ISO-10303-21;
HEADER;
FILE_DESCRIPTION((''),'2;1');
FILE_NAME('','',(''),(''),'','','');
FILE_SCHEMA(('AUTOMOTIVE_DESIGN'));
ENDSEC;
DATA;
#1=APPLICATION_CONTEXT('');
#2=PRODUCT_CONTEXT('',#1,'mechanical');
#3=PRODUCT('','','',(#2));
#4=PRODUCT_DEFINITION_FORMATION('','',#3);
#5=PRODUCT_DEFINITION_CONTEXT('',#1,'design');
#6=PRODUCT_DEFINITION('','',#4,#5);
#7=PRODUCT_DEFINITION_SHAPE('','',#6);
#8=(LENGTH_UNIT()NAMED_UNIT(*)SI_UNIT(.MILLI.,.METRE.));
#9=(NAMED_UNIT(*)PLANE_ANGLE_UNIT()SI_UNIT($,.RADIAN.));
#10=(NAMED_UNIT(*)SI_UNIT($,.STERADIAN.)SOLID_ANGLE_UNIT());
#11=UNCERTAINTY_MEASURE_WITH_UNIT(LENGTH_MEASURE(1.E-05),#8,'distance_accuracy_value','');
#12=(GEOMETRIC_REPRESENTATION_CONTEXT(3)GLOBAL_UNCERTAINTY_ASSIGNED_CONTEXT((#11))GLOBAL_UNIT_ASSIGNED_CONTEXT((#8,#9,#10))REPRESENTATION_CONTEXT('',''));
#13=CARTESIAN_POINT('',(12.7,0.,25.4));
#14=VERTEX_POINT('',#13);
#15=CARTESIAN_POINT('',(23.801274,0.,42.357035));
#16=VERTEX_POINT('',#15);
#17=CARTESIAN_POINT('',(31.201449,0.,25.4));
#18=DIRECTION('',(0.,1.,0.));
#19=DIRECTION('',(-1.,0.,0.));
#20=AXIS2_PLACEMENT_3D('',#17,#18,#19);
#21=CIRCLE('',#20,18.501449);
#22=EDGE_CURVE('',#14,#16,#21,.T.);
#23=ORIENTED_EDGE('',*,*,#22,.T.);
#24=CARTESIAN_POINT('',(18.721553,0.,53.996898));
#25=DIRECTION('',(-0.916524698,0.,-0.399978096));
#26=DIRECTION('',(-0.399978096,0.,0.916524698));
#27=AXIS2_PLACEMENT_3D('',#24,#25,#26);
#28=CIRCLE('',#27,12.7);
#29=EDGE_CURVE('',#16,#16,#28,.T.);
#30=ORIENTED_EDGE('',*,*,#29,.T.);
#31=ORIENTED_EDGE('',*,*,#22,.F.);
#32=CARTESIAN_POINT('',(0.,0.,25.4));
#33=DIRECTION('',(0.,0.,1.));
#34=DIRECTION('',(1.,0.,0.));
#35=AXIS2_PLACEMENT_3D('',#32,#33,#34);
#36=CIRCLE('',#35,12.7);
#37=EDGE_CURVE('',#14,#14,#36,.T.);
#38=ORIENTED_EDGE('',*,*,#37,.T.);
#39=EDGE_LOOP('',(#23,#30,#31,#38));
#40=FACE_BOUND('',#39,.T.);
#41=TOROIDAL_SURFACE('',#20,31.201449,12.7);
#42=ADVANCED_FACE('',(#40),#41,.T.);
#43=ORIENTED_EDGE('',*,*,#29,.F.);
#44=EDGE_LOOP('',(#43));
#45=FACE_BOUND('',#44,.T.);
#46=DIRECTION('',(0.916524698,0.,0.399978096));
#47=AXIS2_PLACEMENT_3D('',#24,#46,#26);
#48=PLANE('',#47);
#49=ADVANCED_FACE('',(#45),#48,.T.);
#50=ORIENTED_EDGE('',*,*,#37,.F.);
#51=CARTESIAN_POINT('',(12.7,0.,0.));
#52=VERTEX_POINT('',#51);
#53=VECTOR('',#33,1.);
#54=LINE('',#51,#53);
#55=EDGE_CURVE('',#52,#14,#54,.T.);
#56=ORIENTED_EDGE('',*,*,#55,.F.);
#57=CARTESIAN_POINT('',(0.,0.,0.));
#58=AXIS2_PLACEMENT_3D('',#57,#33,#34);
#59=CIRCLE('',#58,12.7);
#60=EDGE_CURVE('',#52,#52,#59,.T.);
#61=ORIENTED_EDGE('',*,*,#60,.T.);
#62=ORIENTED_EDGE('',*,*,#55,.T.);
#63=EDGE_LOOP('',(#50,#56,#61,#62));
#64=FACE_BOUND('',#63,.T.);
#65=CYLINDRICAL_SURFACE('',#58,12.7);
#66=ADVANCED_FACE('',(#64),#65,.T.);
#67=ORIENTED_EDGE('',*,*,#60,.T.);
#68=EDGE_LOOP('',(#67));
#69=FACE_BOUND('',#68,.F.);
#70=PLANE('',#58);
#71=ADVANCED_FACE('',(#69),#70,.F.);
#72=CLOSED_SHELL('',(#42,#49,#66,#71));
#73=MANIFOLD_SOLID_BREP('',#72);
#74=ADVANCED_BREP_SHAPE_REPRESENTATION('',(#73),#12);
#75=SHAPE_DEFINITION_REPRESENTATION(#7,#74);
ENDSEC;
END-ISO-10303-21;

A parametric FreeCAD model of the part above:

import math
import FreeCAD as App
import Part
import Sketcher

V = App.Vector
Q = App.Units.Quantity

doc = App.newDocument("Part")
body = doc.addObject("PartDesign::Body", "Body")

sketch1 = body.newObject("Sketcher::SketchObject", "Sketch")
sketch1.AttachmentSupport = (doc.getObject("XY_Plane"), [""])
sketch1.MapMode = "FlatFace"
sketch1.addGeometry(Part.Circle(V(0, 0, 0), V(0, 0, 1), 13), False)
sketch1.addConstraint([
    Sketcher.Constraint("Coincident", 0, 3, -1, 1),
    Sketcher.Constraint("Diameter", 0, Q("1 in")),
])

sketch2 = body.newObject("Sketcher::SketchObject", "Sketch001")
sketch2.AttachmentSupport = (doc.getObject("XZ_Plane"), [""])
sketch2.MapMode = "FlatFace"
sketch2.addGeometry([
    Part.LineSegment(V(0, 0, 0), V(0, 25, 0)),
    Part.ArcOfCircle(Part.Circle(V(31, 25, 0), V(0, 0, 1), 31), math.radians(114), math.radians(180)),
], False)
sketch2.addConstraint([
    Sketcher.Constraint("Tangent", 0, 2, 1, 2),
    Sketcher.Constraint("Vertical", 0),
    Sketcher.Constraint("Coincident", 0, 1, -1, 1),
    Sketcher.Constraint("DistanceY", 0, 1, 0, 2, Q("1 in")),
    Sketcher.Constraint("Radius", 1, Q("31.201449 mm")),
    Sketcher.Constraint("DistanceY", -1, 1, 1, 1, Q("53.996898 mm")),
])
doc.recompute()

additivepipe = body.newObject("PartDesign::AdditivePipe", "AdditivePipe")
additivepipe.Profile = sketch1
additivepipe.Spine = (sketch2, ["Edge1", "Edge2"])

doc.recompute()
